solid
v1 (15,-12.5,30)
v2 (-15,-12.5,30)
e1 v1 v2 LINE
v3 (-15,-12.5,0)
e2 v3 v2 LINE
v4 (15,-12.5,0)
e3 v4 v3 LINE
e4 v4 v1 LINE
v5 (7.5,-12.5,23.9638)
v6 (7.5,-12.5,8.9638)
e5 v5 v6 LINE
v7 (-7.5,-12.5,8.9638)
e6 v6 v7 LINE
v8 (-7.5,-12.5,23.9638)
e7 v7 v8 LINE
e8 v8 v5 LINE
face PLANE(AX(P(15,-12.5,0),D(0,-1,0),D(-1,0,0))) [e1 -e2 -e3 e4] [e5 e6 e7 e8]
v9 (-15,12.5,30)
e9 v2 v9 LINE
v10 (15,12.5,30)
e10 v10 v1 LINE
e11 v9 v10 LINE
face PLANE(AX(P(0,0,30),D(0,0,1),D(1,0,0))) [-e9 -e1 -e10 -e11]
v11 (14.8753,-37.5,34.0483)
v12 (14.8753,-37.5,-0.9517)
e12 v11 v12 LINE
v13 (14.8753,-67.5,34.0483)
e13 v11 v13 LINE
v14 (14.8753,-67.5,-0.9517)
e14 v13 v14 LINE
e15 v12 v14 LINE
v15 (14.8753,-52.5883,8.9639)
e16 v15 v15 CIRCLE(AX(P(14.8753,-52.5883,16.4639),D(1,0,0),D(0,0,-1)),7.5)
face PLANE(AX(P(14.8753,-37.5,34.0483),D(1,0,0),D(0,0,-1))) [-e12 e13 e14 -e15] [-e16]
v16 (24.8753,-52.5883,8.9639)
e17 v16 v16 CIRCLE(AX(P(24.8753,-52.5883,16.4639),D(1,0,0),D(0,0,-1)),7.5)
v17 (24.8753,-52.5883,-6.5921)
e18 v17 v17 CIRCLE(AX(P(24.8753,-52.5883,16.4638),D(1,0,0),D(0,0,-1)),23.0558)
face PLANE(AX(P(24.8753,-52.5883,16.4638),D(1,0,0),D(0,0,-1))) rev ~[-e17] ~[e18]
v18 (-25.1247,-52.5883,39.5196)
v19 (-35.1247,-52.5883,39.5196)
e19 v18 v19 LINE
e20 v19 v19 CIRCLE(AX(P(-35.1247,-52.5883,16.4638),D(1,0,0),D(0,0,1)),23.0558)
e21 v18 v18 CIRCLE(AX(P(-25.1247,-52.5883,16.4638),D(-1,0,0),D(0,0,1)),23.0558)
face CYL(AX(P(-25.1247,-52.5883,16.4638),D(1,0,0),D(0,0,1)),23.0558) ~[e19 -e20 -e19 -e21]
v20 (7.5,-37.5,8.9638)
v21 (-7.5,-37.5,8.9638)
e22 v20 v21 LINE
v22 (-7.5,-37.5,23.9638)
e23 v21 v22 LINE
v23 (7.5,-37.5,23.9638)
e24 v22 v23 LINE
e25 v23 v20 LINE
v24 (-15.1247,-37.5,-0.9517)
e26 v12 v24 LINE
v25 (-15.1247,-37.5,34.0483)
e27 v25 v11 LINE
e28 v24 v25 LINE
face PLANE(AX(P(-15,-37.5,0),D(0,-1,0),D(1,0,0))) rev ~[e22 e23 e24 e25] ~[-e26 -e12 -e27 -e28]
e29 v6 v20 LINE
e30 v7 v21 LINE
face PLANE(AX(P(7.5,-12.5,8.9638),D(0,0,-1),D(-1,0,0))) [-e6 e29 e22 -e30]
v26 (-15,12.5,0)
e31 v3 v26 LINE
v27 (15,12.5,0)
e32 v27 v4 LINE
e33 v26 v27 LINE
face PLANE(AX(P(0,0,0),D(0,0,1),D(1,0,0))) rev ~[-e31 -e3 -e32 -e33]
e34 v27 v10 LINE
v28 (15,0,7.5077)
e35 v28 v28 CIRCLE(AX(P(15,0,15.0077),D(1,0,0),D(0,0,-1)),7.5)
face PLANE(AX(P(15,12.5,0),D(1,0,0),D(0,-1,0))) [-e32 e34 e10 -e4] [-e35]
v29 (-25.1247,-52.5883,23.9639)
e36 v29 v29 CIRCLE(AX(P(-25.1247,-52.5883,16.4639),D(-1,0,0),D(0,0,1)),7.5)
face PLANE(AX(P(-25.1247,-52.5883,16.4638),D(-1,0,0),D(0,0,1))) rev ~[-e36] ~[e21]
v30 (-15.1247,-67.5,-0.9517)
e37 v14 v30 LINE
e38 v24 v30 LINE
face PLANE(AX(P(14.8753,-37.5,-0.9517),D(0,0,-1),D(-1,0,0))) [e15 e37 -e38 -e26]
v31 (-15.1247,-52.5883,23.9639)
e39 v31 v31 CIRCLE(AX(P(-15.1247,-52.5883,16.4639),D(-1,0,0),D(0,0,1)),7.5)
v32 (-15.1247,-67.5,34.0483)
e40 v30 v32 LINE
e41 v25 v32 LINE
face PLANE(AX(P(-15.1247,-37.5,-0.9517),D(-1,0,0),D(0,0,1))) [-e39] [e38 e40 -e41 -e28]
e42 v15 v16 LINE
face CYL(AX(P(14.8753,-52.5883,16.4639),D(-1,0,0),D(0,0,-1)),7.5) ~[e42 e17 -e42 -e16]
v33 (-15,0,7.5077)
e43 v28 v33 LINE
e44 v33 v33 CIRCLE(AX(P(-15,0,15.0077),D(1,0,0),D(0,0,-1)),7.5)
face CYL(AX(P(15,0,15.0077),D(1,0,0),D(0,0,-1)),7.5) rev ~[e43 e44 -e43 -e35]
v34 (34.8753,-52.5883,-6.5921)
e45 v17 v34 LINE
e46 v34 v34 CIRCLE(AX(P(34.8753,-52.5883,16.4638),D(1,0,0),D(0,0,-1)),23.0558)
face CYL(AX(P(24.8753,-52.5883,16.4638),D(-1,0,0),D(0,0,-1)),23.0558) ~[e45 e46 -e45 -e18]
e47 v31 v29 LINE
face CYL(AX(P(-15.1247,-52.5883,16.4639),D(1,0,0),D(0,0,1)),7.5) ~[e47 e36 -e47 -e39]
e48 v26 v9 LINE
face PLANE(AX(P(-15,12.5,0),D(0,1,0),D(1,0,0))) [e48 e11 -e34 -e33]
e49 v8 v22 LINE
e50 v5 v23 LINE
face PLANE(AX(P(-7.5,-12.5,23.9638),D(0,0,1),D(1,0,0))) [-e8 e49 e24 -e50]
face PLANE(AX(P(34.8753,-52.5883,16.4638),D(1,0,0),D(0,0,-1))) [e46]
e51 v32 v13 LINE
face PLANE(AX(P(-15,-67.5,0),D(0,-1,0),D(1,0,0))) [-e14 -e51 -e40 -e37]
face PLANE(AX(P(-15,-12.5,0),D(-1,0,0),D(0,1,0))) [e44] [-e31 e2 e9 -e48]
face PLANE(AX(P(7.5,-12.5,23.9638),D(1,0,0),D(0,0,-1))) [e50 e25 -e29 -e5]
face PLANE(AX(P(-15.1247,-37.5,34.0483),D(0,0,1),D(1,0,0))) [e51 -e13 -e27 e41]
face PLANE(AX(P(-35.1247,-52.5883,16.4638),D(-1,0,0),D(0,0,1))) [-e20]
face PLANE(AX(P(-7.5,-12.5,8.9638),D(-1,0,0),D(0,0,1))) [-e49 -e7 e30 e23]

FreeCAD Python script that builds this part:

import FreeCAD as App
import Part
import Sketcher
from FreeCAD import Vector
Q = App.Units.Quantity

doc = App.newDocument("Part")
body = doc.addObject("PartDesign::Body", "Body")

# Sketch on XY plane
sketch1 = body.newObject("Sketcher::SketchObject", "Sketch")
sketch1.AttachmentSupport = (doc.getObject("XY_Plane"), [""])
sketch1.MapMode = "FlatFace"
sketch1.addGeometry(Part.LineSegment(Vector(15, 12.5, 0), Vector(-15, 12.5, 0)), False)
sketch1.addGeometry(Part.LineSegment(Vector(-15, 12.5, 0), Vector(-15, -12.5, 0)), False)
sketch1.addGeometry(Part.LineSegment(Vector(-15, -12.5, 0), Vector(15, -12.5, 0)), False)
sketch1.addGeometry(Part.LineSegment(Vector(15, -12.5, 0), Vector(15, 12.5, 0)), False)
sketch1.addConstraint(Sketcher.Constraint("Coincident", 0, 2, 1, 1))
sketch1.addConstraint(Sketcher.Constraint("Coincident", 1, 2, 2, 1))
sketch1.addConstraint(Sketcher.Constraint("Coincident", 2, 2, 3, 1))
sketch1.addConstraint(Sketcher.Constraint("Coincident", 3, 2, 0, 1))
sketch1.addConstraint(Sketcher.Constraint("Horizontal", 0))
sketch1.addConstraint(Sketcher.Constraint("Vertical", 1))
sketch1.addConstraint(Sketcher.Constraint("Horizontal", 2))
sketch1.addConstraint(Sketcher.Constraint("Vertical", 3))
sketch1.addConstraint(Sketcher.Constraint("Symmetric", 0, 2, 2, 2, -1, 1))
sketch1.addConstraint(Sketcher.Constraint("DistanceX", 0, 2, 0, 1, Q("30 mm")))
sketch1.addConstraint(Sketcher.Constraint("DistanceY", 1, 2, 1, 1, Q("25 mm")))
pad1 = body.newObject("PartDesign::Pad", "Pad")
pad1.Profile = sketch1
pad1.Length = 30

# Sketch on YZ plane
sketch2 = body.newObject("Sketcher::SketchObject", "Sketch001")
sketch2.AttachmentSupport = (doc.getObject("YZ_Plane"), [""])
sketch2.MapMode = "FlatFace"
sketch2.AttachmentOffset = App.Placement(Vector(0, 0, 15), App.Rotation())
sketch2.addGeometry(Part.Circle(Vector(0, 15.0077, 0), Vector(0, 0, 1), 7.5), False)
sketch2.addConstraint(Sketcher.Constraint("PointOnObject", 0, 3, -2))
sketch2.addConstraint(Sketcher.Constraint("Diameter", 0, Q("15 mm")))
sketch2.addConstraint(Sketcher.Constraint("DistanceY", -1, 1, 0, 3, Q("15.0077 mm")))
pocket1 = body.newObject("PartDesign::Pocket", "Pocket")
pocket1.Profile = sketch2
pocket1.Type = "ThroughAll"

# Sketch on XZ plane
sketch3 = body.newObject("Sketcher::SketchObject", "Sketch002")
sketch3.AttachmentSupport = (doc.getObject("XZ_Plane"), [""])
sketch3.MapMode = "FlatFace"
sketch3.AttachmentOffset = App.Placement(Vector(0, 0, 12.5), App.Rotation())
sketch3.addGeometry(Part.LineSegment(Vector(7.5, 23.9638, 0), Vector(-7.5, 23.9638, 0)), False)
sketch3.addGeometry(Part.LineSegment(Vector(-7.5, 23.9638, 0), Vector(-7.5, 8.9638, 0)), False)
sketch3.addGeometry(Part.LineSegment(Vector(-7.5, 8.9638, 0), Vector(7.5, 8.9638, 0)), False)
sketch3.addGeometry(Part.LineSegment(Vector(7.5, 8.9638, 0), Vector(7.5, 23.9638, 0)), False)
sketch3.addConstraint(Sketcher.Constraint("Coincident", 0, 2, 1, 1))
sketch3.addConstraint(Sketcher.Constraint("Coincident", 1, 2, 2, 1))
sketch3.addConstraint(Sketcher.Constraint("Coincident", 2, 2, 3, 1))
sketch3.addConstraint(Sketcher.Constraint("Coincident", 3, 2, 0, 1))
sketch3.addConstraint(Sketcher.Constraint("Horizontal", 0))
sketch3.addConstraint(Sketcher.Constraint("Vertical", 1))
sketch3.addConstraint(Sketcher.Constraint("Horizontal", 2))
sketch3.addConstraint(Sketcher.Constraint("Vertical", 3))
sketch3.addConstraint(Sketcher.Constraint("Equal", 2, 1))
sketch3.addConstraint(Sketcher.Constraint("DistanceX", 0, 2, 0, 1, Q("15 mm")))
sketch3.addConstraint(Sketcher.Constraint("DistanceX", 0, 2, -1, 1, Q("7.5 mm")))
sketch3.addConstraint(Sketcher.Constraint("DistanceY", -1, 1, 0, 2, Q("23.9638 mm")))
pad2 = body.newObject("PartDesign::Pad", "Pad001")
pad2.Profile = sketch3
pad2.Length = 25

# Sketch on XZ plane
sketch4 = body.newObject("Sketcher::SketchObject", "Sketch003")
sketch4.AttachmentSupport = (doc.getObject("XZ_Plane"), [""])
sketch4.MapMode = "FlatFace"
sketch4.AttachmentOffset = App.Placement(Vector(0, 0, 37.5), App.Rotation())
sketch4.addGeometry(Part.LineSegment(Vector(14.8753, 34.0483, 0), Vector(-15.1247, 34.0483, 0)), False)
sketch4.addGeometry(Part.LineSegment(Vector(-15.1247, 34.0483, 0), Vector(-15.1247, -0.9517, 0)), False)
sketch4.addGeometry(Part.LineSegment(Vector(-15.1247, -0.9517, 0), Vector(14.8753, -0.9517, 0)), False)
sketch4.addGeometry(Part.LineSegment(Vector(14.8753, -0.9517, 0), Vector(14.8753, 34.0483, 0)), False)
sketch4.addConstraint(Sketcher.Constraint("Coincident", 0, 2, 1, 1))
sketch4.addConstraint(Sketcher.Constraint("Coincident", 1, 2, 2, 1))
sketch4.addConstraint(Sketcher.Constraint("Coincident", 2, 2, 3, 1))
sketch4.addConstraint(Sketcher.Constraint("Coincident", 3, 2, 0, 1))
sketch4.addConstraint(Sketcher.Constraint("Horizontal", 0))
sketch4.addConstraint(Sketcher.Constraint("Vertical", 1))
sketch4.addConstraint(Sketcher.Constraint("Horizontal", 2))
sketch4.addConstraint(Sketcher.Constraint("Vertical", 3))
sketch4.addConstraint(Sketcher.Constraint("DistanceX", 0, 2, 0, 1, Q("30 mm")))
sketch4.addConstraint(Sketcher.Constraint("DistanceY", 1, 2, 1, 1, Q("35 mm")))
sketch4.addConstraint(Sketcher.Constraint("DistanceX", 0, 2, -1, 1, Q("15.1247 mm")))
sketch4.addConstraint(Sketcher.Constraint("DistanceY", -1, 1, 0, 2, Q("34.0483 mm")))
pad3 = body.newObject("PartDesign::Pad", "Pad002")
pad3.Profile = sketch4
pad3.Length = 30

# Sketch on YZ plane
sketch5 = body.newObject("Sketcher::SketchObject", "Sketch004")
sketch5.AttachmentSupport = (doc.getObject("YZ_Plane"), [""])
sketch5.MapMode = "FlatFace"
sketch5.AttachmentOffset = App.Placement(Vector(0, 0, -15.1247), App.Rotation())
sketch5.addGeometry(Part.Circle(Vector(-52.5883, 16.4639, 0), Vector(0, 0, 1), 7.5), False)
sketch5.addConstraint(Sketcher.Constraint("Diameter", 0, Q("15 mm")))
sketch5.addConstraint(Sketcher.Constraint("DistanceY", -1, 1, 0, 3, Q("16.464 mm")))
sketch5.addConstraint(Sketcher.Constraint("DistanceX", 0, 3, -1, 1, Q("52.5883 mm")))
pad4 = body.newObject("PartDesign::Pad", "Pad003")
pad4.Profile = sketch5
pad4.Length = 10
pad4.Reversed = True

# Sketch on YZ plane
sketch6 = body.newObject("Sketcher::SketchObject", "Sketch005")
sketch6.AttachmentSupport = (doc.getObject("YZ_Plane"), [""])
sketch6.MapMode = "FlatFace"
sketch6.AttachmentOffset = App.Placement(Vector(0, 0, 14.8753), App.Rotation())
sketch6.addGeometry(Part.Circle(Vector(-52.5883, 16.4639, 0), Vector(0, 0, 1), 7.5), False)
sketch6.addConstraint(Sketcher.Constraint("Diameter", 0, Q("15 mm")))
sketch6.addConstraint(Sketcher.Constraint("DistanceY", -1, 1, 0, 3, Q("16.464 mm")))
sketch6.addConstraint(Sketcher.Constraint("DistanceX", 0, 3, -1, 1, Q("52.5883 mm")))
pad5 = body.newObject("PartDesign::Pad", "Pad004")
pad5.Profile = sketch6
pad5.Length = 10

# Sketch on YZ plane
sketch7 = body.newObject("Sketcher::SketchObject", "Sketch006")
sketch7.AttachmentSupport = (doc.getObject("YZ_Plane"), [""])
sketch7.MapMode = "FlatFace"
sketch7.AttachmentOffset = App.Placement(Vector(0, 0, -25.1247), App.Rotation())
sketch7.addGeometry(Part.Circle(Vector(-52.5883, 16.4638, 0), Vector(0, 0, 1), 23.0558), False)
sketch7.addConstraint(Sketcher.Constraint("Diameter", 0, Q("46.1116 mm")))
sketch7.addConstraint(Sketcher.Constraint("DistanceX", 0, 3, -1, 1, Q("52.5883 mm")))
sketch7.addConstraint(Sketcher.Constraint("DistanceY", -1, 1, 0, 3, Q("16.4638 mm")))
pad6 = body.newObject("PartDesign::Pad", "Pad005")
pad6.Profile = sketch7
pad6.Length = 10
pad6.Reversed = True

# Sketch on YZ plane
sketch8 = body.newObject("Sketcher::SketchObject", "Sketch007")
sketch8.AttachmentSupport = (doc.getObject("YZ_Plane"), [""])
sketch8.MapMode = "FlatFace"
sketch8.AttachmentOffset = App.Placement(Vector(0, 0, 24.8753), App.Rotation())
sketch8.addGeometry(Part.Circle(Vector(-52.5883, 16.4638, 0), Vector(0, 0, 1), 23.0558), False)
sketch8.addConstraint(Sketcher.Constraint("Diameter", 0, Q("46.1116 mm")))
sketch8.addConstraint(Sketcher.Constraint("DistanceX", 0, 3, -1, 1, Q("52.5883 mm")))
sketch8.addConstraint(Sketcher.Constraint("DistanceY", -1, 1, 0, 3, Q("16.4638 mm")))
pad7 = body.newObject("PartDesign::Pad", "Pad006")
pad7.Profile = sketch8
pad7.Length = 10

doc.recompute()
